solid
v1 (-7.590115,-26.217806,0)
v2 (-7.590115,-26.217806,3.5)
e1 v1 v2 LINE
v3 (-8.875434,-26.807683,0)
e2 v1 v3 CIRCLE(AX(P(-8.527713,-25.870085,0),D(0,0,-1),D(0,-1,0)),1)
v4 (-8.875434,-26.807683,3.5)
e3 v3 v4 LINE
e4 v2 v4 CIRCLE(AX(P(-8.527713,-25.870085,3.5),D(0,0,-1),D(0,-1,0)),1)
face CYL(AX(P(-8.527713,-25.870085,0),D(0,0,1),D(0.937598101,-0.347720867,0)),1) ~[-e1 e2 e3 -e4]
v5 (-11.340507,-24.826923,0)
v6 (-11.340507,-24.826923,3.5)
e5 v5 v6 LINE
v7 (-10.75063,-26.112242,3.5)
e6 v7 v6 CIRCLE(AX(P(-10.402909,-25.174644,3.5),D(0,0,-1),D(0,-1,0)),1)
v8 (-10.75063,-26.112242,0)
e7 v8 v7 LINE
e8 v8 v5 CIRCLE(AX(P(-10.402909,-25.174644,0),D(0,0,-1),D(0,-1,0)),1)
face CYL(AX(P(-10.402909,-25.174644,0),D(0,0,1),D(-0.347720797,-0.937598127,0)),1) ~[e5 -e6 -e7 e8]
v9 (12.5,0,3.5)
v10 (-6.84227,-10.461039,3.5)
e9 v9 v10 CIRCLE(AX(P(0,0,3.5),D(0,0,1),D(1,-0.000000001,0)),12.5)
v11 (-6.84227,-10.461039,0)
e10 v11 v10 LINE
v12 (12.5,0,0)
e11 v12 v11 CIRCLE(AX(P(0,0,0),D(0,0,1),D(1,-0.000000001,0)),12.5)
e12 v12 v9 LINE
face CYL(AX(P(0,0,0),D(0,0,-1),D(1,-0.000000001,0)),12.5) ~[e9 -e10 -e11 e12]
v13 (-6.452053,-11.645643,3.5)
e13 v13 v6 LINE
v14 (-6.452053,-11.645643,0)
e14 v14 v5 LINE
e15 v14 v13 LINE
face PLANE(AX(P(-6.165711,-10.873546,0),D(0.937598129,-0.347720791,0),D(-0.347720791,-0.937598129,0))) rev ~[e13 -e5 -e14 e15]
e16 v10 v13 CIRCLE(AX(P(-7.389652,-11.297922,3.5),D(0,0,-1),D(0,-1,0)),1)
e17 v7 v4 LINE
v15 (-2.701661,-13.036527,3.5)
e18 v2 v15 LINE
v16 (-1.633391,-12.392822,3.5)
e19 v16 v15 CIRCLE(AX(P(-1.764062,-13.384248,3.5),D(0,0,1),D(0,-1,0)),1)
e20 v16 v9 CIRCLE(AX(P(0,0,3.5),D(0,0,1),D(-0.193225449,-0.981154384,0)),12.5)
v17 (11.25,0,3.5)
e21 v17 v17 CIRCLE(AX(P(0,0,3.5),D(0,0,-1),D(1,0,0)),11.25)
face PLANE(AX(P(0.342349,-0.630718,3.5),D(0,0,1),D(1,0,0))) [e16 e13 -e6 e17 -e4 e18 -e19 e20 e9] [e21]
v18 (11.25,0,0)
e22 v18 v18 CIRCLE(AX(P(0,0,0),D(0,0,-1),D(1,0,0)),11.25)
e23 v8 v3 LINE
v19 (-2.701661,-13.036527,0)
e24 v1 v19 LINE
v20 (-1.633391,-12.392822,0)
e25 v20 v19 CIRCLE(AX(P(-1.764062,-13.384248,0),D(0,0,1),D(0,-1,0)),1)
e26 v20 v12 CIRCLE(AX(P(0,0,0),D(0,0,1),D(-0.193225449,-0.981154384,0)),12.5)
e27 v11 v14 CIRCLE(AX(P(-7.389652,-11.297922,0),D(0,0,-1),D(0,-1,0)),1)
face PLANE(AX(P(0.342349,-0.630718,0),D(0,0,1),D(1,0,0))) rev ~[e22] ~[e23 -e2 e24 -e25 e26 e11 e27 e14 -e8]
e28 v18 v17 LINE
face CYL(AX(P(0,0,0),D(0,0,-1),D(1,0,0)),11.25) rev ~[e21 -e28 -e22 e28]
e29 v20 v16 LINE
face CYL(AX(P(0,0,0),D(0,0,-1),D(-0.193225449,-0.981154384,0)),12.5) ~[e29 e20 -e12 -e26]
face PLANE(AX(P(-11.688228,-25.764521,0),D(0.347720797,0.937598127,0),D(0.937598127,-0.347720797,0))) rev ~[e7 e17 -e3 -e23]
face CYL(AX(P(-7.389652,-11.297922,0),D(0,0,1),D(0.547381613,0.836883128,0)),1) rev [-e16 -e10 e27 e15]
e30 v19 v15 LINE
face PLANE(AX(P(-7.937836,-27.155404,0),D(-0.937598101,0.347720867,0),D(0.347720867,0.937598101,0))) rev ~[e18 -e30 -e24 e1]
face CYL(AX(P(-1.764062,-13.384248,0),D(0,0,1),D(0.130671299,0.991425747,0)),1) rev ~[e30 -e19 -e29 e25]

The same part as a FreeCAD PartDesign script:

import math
import FreeCAD as App
import Part
import Sketcher
Q = App.Units.Quantity


def edges_at(feature, points):
    """Names of the edges that pass closest to the given points."""
    edges = feature.Shape.Edges
    near = lambda p: min(range(len(edges)), key=lambda i: edges[i].distToShape(Part.Vertex(*p))[0])
    return sorted({f"Edge{near(p) + 1}" for p in points})

doc = App.newDocument("Part")
body = doc.addObject("PartDesign::Body", "Body")

# Sketch on XY plane
sketch1 = body.newObject("Sketcher::SketchObject", "Sketch")
sketch1.AttachmentSupport = (doc.getObject("XY_Plane"), [""])
sketch1.MapMode = "FlatFace"
sketch1.addGeometry([
    Part.ArcOfCircle(Part.Circle(App.Vector(0, 0, 0), App.Vector(0, 0, 1), 12.5), math.radians(-101), math.radians(0)),  # 0
    Part.ArcOfCircle(Part.Circle(App.Vector(0, 0, 0), App.Vector(0, 0, 1), 12.5), math.radians(0), math.radians(240)),  # 1
    Part.LineSegment(App.Vector(-6.2, -10.9, 0), App.Vector(-11.7, -25.8, 0)),  # 2
    Part.LineSegment(App.Vector(-11.7, -25.8, 0), App.Vector(-7.9, -27.2, 0)),  # 3
    Part.LineSegment(App.Vector(-7.9, -27.2, 0), App.Vector(-2.4, -12.3, 0)),  # 4
], False)
sketch1.addConstraint([
    Sketcher.Constraint("Tangent", 0, 2, 1, 1),
    Sketcher.Constraint("Coincident", 1, 2, 2, 1),
    Sketcher.Constraint("Coincident", 2, 2, 3, 1),
    Sketcher.Constraint("Coincident", 3, 2, 4, 1),
    Sketcher.Constraint("Coincident", 4, 2, 0, 1),
    Sketcher.Constraint("Coincident", 0, 3, -1, 1),
    Sketcher.Constraint("Equal", 0, 1),
    Sketcher.Constraint("PointOnObject", 0, 2, -1),
    Sketcher.Constraint("Perpendicular", 2, 3),
    Sketcher.Constraint("Perpendicular", 3, 4),
    Sketcher.Constraint("Equal", 2, 4),
    Sketcher.Constraint("Radius", 0, Q("12.5 mm")),
    Sketcher.Constraint("Distance", 3, Q("3.999999 mm")),
    Sketcher.Constraint("DistanceX", 1, 2, -1, 1, Q("6.165711 mm")),
    Sketcher.Constraint("DistanceY", 2, 2, -1, 1, Q("25.764521 mm")),
])
pad1 = body.newObject("PartDesign::Pad", "Pad")
pad1.Profile = sketch1
pad1.Length = 3.5

# Sketch on XY plane
sketch2 = body.newObject("Sketcher::SketchObject", "Sketch001")
sketch2.AttachmentSupport = (doc.getObject("XY_Plane"), [""])
sketch2.MapMode = "FlatFace"
sketch2.addGeometry(Part.Circle(App.Vector(0, 0, 0), App.Vector(0, 0, 1), 11), False)
sketch2.addConstraint([
    Sketcher.Constraint("Coincident", 0, 3, -1, 1),
    Sketcher.Constraint("Diameter", 0, Q("22.5 mm")),
])
pocket1 = body.newObject("PartDesign::Pocket", "Pocket")
pocket1.Profile = sketch2
pocket1.Type = "ThroughAll"
pocket1.Reversed = True
doc.recompute()

fillet = body.newObject("PartDesign::Fillet", "Fillet")
fillet.Base = (pocket1, edges_at(pocket1, [
    (-7.938, -27.155, 1.75),
    (-11.688, -25.765, 1.75),
    (-2.415, -12.264, 1.75),
    (-6.166, -10.874, 1.75),
]))
fillet.Radius = 1

doc.recompute()
